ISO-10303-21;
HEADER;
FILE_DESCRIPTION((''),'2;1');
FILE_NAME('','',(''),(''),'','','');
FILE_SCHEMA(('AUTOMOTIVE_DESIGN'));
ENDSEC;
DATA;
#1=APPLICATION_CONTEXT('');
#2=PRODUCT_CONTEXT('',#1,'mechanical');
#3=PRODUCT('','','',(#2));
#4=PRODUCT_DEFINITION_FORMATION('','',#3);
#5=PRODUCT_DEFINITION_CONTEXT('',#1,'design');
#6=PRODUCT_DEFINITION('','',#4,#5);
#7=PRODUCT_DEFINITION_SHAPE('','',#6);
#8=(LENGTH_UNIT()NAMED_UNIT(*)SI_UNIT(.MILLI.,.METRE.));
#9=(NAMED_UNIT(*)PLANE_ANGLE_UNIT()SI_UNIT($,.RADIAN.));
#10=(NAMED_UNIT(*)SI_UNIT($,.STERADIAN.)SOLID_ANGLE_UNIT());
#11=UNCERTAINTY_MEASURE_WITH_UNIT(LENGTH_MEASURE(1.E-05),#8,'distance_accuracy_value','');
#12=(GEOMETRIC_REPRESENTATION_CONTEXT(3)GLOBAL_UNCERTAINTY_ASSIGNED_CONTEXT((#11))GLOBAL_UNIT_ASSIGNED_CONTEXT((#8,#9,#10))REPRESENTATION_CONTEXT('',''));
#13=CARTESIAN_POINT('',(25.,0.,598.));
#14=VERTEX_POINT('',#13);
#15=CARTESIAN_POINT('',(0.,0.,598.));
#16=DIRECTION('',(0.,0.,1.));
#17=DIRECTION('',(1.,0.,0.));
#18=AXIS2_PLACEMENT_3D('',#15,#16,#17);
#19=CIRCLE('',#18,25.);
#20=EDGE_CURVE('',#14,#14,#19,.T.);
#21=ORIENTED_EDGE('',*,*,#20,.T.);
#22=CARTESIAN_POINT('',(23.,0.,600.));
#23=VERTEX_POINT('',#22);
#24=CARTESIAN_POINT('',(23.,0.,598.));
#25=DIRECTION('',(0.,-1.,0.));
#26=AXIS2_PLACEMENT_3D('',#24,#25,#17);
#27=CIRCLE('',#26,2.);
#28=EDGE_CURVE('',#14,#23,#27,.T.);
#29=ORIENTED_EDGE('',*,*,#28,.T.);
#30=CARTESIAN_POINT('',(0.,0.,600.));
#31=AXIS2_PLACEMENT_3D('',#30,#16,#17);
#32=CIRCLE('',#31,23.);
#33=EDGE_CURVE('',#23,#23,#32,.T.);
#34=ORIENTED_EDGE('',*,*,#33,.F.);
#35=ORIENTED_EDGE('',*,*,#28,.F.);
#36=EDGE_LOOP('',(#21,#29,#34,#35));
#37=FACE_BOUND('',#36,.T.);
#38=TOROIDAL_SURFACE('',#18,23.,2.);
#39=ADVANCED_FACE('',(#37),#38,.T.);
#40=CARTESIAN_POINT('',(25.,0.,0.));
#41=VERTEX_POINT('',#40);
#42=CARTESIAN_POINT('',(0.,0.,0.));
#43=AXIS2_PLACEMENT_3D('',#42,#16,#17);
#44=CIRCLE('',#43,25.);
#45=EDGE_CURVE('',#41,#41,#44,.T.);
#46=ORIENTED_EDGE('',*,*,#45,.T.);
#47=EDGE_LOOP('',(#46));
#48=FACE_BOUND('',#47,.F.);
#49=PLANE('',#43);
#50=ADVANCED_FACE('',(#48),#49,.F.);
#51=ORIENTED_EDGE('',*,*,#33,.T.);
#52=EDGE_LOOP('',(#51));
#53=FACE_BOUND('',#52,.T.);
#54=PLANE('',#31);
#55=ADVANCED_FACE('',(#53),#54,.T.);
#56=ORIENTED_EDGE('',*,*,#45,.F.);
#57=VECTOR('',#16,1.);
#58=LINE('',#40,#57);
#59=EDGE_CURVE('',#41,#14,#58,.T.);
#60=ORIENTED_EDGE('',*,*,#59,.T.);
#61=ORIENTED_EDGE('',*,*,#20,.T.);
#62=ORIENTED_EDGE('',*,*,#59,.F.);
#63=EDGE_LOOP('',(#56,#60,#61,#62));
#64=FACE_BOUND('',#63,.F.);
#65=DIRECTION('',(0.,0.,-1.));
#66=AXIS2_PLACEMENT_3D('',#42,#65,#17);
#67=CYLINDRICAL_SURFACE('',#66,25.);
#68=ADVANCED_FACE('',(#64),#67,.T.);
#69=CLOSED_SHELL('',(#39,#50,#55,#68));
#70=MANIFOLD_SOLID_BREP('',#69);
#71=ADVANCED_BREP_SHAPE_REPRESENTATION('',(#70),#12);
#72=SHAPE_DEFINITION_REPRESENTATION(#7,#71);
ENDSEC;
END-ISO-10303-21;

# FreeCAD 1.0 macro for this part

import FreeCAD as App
import Part
import Sketcher
Q = App.Units.Quantity


def edges_at(feature, points):
    """Names of the edges that pass closest to the given points."""
    edges = feature.Shape.Edges
    near = lambda p: min(range(len(edges)), key=lambda i: edges[i].distToShape(Part.Vertex(*p))[0])
    return sorted({f"Edge{near(p) + 1}" for p in points})

doc = App.newDocument("Part")
body = doc.addObject("PartDesign::Body", "Body")

sketch1 = doc.addObject("Sketcher::SketchObject", "Sketch")
body.addObject(sketch1)
sketch1.AttachmentSupport = (doc.XY_Plane, [""])
sketch1.MapMode = "FlatFace"
sketch1.addGeometry(Part.Circle(App.Vector(0, 0, 0), App.Vector(0, 0, 1), 25), False)
sketch1.addConstraint([
    Sketcher.Constraint("Coincident", 0, 3, -1, 1),
    Sketcher.Constraint("Diameter", 0, Q("50 mm")),
])
pad1 = doc.addObject("PartDesign::Pad", "Pad")
body.addObject(pad1)
pad1.Profile = sketch1
pad1.Length = 600
doc.recompute()

fillet = doc.addObject("PartDesign::Fillet", "Fillet")
body.addObject(fillet)
fillet.Base = (pad1, edges_at(pad1, [(-25, 0, 600)]))
fillet.Radius = 2

doc.recompute()
